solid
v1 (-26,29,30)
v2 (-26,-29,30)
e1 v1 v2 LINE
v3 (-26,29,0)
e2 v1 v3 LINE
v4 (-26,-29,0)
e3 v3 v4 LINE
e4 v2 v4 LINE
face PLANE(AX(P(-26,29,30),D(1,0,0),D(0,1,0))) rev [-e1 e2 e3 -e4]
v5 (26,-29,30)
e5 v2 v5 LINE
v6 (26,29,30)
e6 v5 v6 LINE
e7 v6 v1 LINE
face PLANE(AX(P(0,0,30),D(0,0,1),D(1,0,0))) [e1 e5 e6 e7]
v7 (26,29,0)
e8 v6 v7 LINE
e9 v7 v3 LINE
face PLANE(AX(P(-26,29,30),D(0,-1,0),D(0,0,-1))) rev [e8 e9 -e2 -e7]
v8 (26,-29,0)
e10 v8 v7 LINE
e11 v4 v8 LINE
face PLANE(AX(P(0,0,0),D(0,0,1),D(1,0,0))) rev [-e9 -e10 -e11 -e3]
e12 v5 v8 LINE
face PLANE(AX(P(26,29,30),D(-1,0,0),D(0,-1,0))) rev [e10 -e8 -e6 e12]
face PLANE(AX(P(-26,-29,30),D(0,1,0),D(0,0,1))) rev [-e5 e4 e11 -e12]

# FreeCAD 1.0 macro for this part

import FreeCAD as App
import Part
import Sketcher
Q = App.Units.Quantity

doc = App.newDocument("Part")
params = doc.addObject("Spreadsheet::Sheet", "Params")
for row, (alias, value) in enumerate([
    ("sketch1_width", "52 mm"),
    ("sketch1_height", "58 mm"),
    ("pad1_length", "30 mm"),
], start=1):
    params.set(f"A{row}", alias)
    params.set(f"B{row}", "=" + value)
    params.setAlias(f"B{row}", alias)

body = doc.addObject("PartDesign::Body", "Body")

# Sketch on XY plane
sketch1 = body.newObject("Sketcher::SketchObject", "Sketch")
sketch1.AttachmentSupport = (doc.getObject("XY_Plane"), [""])
sketch1.MapMode = "FlatFace"
sketch1.addGeometry(Part.LineSegment(App.Vector(-26, 29, 0), App.Vector(-26, -29, 0)), False)
sketch1.addGeometry(Part.LineSegment(App.Vector(-26, -29, 0), App.Vector(26, -29, 0)), False)
sketch1.addGeometry(Part.LineSegment(App.Vector(26, -29, 0), App.Vector(26, 29, 0)), False)
sketch1.addGeometry(Part.LineSegment(App.Vector(26, 29, 0), App.Vector(-26, 29, 0)), False)
sketch1.addConstraint(Sketcher.Constraint("Coincident", 0, 2, 1, 1))
sketch1.addConstraint(Sketcher.Constraint("Coincident", 1, 2, 2, 1))
sketch1.addConstraint(Sketcher.Constraint("Coincident", 2, 2, 3, 1))
sketch1.addConstraint(Sketcher.Constraint("Coincident", 3, 2, 0, 1))
sketch1.addConstraint(Sketcher.Constraint("Vertical", 0))
sketch1.addConstraint(Sketcher.Constraint("Horizontal", 1))
sketch1.addConstraint(Sketcher.Constraint("Vertical", 2))
sketch1.addConstraint(Sketcher.Constraint("Horizontal", 3))
sketch1.addConstraint(Sketcher.Constraint("Symmetric", 0, 2, 2, 2, -1, 1))
sketch1.addConstraint(Sketcher.Constraint("DistanceX", 1, 1, 1, 2, Q("52 mm")))
sketch1.addConstraint(Sketcher.Constraint("DistanceY", 0, 2, 0, 1, Q("58 mm")))
sketch1.setExpression("Constraints[9]", "Params.sketch1_width")
sketch1.setExpression("Constraints[10]", "Params.sketch1_height")
pad1 = body.newObject("PartDesign::Pad", "Pad")
pad1.Profile = sketch1
pad1.setExpression("Length", "Params.pad1_length")

doc.recompute()
